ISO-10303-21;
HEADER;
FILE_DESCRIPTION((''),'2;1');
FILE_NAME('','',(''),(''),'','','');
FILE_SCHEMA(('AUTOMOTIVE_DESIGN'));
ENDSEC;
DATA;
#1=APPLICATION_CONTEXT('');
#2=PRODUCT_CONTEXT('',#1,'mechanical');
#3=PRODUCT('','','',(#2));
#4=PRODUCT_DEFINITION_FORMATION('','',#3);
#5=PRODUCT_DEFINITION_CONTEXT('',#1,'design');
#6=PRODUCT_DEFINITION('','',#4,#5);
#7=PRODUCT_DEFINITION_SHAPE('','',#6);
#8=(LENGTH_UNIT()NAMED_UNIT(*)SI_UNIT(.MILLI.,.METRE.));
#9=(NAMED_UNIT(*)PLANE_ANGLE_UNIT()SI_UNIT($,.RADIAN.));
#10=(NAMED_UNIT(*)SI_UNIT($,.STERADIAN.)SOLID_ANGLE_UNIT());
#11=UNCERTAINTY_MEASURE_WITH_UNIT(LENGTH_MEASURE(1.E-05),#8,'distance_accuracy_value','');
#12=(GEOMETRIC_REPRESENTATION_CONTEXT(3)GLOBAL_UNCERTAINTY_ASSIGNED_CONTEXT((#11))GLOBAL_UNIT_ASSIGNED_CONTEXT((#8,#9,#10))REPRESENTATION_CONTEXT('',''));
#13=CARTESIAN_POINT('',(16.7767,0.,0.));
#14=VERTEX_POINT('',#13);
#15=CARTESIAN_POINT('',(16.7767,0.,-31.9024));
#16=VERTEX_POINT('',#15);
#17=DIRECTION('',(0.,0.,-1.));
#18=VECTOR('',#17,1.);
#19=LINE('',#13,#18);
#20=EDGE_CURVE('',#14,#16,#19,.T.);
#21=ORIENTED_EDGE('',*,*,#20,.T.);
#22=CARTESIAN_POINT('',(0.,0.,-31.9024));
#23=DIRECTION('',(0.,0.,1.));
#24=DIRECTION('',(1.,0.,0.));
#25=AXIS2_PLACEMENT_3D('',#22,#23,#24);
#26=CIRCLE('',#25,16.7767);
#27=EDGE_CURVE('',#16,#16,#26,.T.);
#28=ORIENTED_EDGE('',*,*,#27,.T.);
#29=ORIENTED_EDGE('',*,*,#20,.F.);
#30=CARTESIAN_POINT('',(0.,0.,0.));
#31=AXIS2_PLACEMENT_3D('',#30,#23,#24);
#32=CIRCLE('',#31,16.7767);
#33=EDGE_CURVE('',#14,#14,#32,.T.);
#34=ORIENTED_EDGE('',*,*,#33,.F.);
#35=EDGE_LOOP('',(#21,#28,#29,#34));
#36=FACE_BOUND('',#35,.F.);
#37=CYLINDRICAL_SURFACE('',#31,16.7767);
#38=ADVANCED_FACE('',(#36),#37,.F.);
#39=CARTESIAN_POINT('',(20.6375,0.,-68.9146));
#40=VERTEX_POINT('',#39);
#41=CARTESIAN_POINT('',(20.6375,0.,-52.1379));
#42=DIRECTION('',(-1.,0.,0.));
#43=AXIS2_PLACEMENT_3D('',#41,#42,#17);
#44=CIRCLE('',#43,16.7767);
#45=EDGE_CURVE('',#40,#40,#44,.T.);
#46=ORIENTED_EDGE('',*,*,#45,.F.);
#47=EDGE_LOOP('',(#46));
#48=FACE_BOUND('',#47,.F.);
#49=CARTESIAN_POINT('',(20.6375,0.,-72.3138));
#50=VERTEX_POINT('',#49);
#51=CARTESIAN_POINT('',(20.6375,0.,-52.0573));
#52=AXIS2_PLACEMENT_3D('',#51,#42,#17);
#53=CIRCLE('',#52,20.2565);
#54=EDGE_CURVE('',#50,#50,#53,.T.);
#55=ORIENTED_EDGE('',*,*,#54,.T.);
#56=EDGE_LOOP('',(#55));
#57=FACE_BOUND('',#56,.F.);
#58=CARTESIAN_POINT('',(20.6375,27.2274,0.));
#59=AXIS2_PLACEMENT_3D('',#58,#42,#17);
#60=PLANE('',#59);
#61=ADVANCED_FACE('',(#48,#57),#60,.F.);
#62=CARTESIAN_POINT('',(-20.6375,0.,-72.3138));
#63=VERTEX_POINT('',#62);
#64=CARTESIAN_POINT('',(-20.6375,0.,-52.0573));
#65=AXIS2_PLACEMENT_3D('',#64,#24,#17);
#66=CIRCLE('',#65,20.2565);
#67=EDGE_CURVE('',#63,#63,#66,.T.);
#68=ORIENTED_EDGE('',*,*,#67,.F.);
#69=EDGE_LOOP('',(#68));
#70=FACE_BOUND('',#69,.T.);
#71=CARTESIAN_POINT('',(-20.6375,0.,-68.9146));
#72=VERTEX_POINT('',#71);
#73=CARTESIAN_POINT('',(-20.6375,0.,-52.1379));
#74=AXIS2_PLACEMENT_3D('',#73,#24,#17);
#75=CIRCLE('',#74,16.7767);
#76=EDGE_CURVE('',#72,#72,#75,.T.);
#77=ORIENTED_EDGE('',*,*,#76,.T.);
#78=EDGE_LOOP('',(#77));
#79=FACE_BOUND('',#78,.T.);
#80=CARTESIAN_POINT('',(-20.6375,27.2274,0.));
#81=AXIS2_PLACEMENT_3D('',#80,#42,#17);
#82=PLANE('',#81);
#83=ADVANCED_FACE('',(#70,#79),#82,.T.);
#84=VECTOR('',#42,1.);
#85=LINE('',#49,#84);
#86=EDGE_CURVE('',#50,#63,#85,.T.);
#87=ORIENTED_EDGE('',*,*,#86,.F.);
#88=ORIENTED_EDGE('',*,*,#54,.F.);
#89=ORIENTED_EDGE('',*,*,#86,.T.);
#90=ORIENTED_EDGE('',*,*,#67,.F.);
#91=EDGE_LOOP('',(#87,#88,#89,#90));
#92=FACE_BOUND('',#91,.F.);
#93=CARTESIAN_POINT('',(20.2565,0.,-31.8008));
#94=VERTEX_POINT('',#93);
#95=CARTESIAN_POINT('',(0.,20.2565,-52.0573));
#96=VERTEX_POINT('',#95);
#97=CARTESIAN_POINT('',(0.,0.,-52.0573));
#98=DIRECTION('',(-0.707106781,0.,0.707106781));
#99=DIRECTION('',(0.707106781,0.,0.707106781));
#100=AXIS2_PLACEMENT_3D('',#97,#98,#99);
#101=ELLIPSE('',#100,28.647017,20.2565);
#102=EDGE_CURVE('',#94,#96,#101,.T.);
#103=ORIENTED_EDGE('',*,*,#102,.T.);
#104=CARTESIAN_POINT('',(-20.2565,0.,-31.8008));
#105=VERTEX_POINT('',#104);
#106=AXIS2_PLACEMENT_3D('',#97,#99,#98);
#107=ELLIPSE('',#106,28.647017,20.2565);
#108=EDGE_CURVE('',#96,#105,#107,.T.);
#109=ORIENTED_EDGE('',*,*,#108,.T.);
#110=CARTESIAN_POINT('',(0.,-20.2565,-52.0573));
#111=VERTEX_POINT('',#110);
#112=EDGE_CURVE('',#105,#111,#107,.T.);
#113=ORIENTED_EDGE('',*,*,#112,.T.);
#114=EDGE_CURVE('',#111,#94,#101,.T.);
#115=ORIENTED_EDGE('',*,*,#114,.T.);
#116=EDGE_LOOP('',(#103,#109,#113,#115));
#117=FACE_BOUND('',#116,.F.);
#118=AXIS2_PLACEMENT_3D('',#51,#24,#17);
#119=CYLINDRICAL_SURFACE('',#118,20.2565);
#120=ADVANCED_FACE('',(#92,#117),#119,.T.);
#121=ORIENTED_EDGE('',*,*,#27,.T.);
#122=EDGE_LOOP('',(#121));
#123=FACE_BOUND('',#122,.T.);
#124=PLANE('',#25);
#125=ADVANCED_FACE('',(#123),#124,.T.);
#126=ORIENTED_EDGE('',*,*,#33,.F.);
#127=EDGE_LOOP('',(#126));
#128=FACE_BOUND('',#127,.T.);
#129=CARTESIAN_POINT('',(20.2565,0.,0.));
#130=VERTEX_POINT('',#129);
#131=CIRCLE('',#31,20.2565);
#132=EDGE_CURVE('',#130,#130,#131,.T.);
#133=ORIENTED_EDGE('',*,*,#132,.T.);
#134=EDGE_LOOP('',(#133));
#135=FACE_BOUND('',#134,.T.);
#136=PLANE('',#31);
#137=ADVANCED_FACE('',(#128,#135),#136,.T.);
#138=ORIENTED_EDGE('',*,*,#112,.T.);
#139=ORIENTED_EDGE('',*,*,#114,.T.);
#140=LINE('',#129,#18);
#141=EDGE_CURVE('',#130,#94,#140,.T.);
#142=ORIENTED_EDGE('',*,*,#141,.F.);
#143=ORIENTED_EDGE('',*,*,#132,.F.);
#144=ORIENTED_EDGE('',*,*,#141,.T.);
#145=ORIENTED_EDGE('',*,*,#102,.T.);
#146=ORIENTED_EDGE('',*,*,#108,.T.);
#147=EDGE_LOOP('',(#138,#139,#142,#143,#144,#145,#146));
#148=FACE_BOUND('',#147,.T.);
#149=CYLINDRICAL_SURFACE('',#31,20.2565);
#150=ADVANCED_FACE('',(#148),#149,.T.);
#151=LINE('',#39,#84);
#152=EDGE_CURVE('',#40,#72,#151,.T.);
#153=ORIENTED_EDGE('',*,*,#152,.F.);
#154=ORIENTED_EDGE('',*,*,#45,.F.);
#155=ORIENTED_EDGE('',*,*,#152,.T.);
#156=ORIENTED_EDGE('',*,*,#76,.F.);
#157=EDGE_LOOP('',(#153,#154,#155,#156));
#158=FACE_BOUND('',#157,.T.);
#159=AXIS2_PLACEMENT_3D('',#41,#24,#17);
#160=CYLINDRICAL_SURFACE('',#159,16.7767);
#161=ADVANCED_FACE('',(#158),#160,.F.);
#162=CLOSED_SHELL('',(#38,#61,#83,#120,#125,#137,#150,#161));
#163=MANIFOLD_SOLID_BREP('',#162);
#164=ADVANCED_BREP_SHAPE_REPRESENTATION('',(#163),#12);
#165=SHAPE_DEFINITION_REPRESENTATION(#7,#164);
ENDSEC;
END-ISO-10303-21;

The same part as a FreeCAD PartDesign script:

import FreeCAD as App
import Part
import Sketcher
from FreeCAD import Vector
Q = App.Units.Quantity

doc = App.newDocument("Part")
body = doc.addObject("PartDesign::Body", "Body")

# Sketch on XY plane
sketch1 = body.newObject("Sketcher::SketchObject", "Sketch")
sketch1.AttachmentSupport = (doc.getObject("XY_Plane"), [""])
sketch1.MapMode = "FlatFace"
sketch1.addGeometry(Part.Circle(Vector(0, 0, 0), Vector(0, 0, 1), 20.2565), False)
sketch1.addConstraint([
    Sketcher.Constraint("Coincident", 0, 3, -1, 1),
    Sketcher.Constraint("Diameter", 0, Q("1.595 in")),
])
pad1 = body.newObject("PartDesign::Pad", "Pad")
pad1.Profile = sketch1
pad1.Length = Q("2.0495 in")
pad1.Reversed = True

# Sketch on YZ plane
sketch2 = body.newObject("Sketcher::SketchObject", "Sketch001")
sketch2.AttachmentSupport = (doc.getObject("YZ_Plane"), [""])
sketch2.MapMode = "FlatFace"
sketch2.AttachmentOffset = App.Placement(Vector(0, 0, 0.8125 * 25.4), App.Rotation())
sketch2.addGeometry(Part.Circle(Vector(0, -52.0573, 0), Vector(0, 0, 1), 20.2565), False)
sketch2.addConstraint([
    Sketcher.Constraint("PointOnObject", 0, 3, -2),
    Sketcher.Constraint("Diameter", 0, Q("1.595 in")),
    Sketcher.Constraint("DistanceY", 0, 3, -1, 1, Q("2.0495 in")),
])
pad2 = body.newObject("PartDesign::Pad", "Pad001")
pad2.Profile = sketch2
pad2.Length = Q("1.625 in")
pad2.Reversed = True

# Sketch on YZ plane
sketch3 = body.newObject("Sketcher::SketchObject", "Sketch002")
sketch3.AttachmentSupport = (doc.getObject("YZ_Plane"), [""])
sketch3.MapMode = "FlatFace"
sketch3.AttachmentOffset = App.Placement(Vector(0, 0, 0.8125 * 25.4), App.Rotation())
sketch3.addGeometry(Part.Circle(Vector(0, -52.1379, 0), Vector(0, 0, 1), 16.7767), False)
sketch3.addConstraint([
    Sketcher.Constraint("PointOnObject", 0, 3, -2),
    Sketcher.Constraint("Diameter", 0, Q("1.321 in")),
    Sketcher.Constraint("DistanceY", 0, 3, -1, 1, 52.138),
])
pocket1 = body.newObject("PartDesign::Pocket", "Pocket")
pocket1.Profile = sketch3
pocket1.Type = "ThroughAll"

# Sketch on XY plane
sketch4 = body.newObject("Sketcher::SketchObject", "Sketch003")
sketch4.AttachmentSupport = (doc.getObject("XY_Plane"), [""])
sketch4.MapMode = "FlatFace"
sketch4.addGeometry(Part.Circle(Vector(0, 0, 0), Vector(0, 0, 1), 16.7767), False)
sketch4.addConstraint([
    Sketcher.Constraint("Coincident", 0, 3, -1, 1),
    Sketcher.Constraint("Diameter", 0, Q("1.321 in")),
])
pocket2 = body.newObject("PartDesign::Pocket", "Pocket001")
pocket2.Profile = sketch4
pocket2.Length = Q("1.256 in")

doc.recompute()
